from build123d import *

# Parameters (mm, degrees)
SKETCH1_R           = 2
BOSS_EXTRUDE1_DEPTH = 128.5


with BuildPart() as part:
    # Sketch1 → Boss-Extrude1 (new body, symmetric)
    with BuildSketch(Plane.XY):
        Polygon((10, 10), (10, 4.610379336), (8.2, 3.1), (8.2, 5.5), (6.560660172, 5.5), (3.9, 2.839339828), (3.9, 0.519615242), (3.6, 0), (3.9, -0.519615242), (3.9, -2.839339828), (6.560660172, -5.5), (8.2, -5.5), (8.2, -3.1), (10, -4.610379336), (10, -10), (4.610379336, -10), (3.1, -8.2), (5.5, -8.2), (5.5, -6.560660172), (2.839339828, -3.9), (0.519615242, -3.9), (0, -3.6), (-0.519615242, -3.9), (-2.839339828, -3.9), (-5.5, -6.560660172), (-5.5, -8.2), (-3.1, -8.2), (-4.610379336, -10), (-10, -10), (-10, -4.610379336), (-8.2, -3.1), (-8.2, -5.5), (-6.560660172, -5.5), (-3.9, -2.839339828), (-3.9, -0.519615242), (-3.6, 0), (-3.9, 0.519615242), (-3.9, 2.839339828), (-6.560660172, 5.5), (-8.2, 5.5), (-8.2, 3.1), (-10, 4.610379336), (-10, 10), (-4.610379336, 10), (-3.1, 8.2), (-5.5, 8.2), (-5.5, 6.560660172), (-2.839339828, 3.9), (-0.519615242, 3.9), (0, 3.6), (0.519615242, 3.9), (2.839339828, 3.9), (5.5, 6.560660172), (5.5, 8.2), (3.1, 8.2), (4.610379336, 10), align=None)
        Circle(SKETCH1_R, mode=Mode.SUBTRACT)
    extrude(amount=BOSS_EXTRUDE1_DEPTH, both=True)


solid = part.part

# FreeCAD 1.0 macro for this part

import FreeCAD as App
import Part
import Sketcher
Q = App.Units.Quantity

doc = App.newDocument("Part")
body = doc.addObject("PartDesign::Body", "Body")

sketch1 = doc.addObject("Sketcher::SketchObject", "Sketch")
body.addObject(sketch1)
sketch1.AttachmentSupport = (doc.XY_Plane, [""])
sketch1.MapMode = "FlatFace"
sketch1.addGeometry([
    Part.LineSegment(App.Vector(10, 4.6, 0), App.Vector(10, 10, 0)),
    Part.LineSegment(App.Vector(10, 10, 0), App.Vector(4.6, 10, 0)),
    Part.LineSegment(App.Vector(4.6, 10, 0), App.Vector(3.1, 8.2, 0)),
    Part.LineSegment(App.Vector(3.1, 8.2, 0), App.Vector(5.5, 8.2, 0)),
    Part.LineSegment(App.Vector(5.5, 8.2, 0), App.Vector(5.5, 6.6, 0)),
    Part.LineSegment(App.Vector(5.5, 6.6, 0), App.Vector(2.8, 3.9, 0)),
    Part.LineSegment(App.Vector(2.8, 3.9, 0), App.Vector(0.5, 3.9, 0)),
    Part.LineSegment(App.Vector(0.5, 3.9, 0), App.Vector(0, 3.6, 0)),
    Part.LineSegment(App.Vector(0, 3.6, 0), App.Vector(-0.5, 3.9, 0)),
    Part.LineSegment(App.Vector(-0.5, 3.9, 0), App.Vector(-2.8, 3.9, 0)),
    Part.LineSegment(App.Vector(-2.8, 3.9, 0), App.Vector(-5.5, 6.6, 0)),
    Part.LineSegment(App.Vector(-5.5, 6.6, 0), App.Vector(-5.5, 8.2, 0)),
    Part.LineSegment(App.Vector(-5.5, 8.2, 0), App.Vector(-3.1, 8.2, 0)),
    Part.LineSegment(App.Vector(-3.1, 8.2, 0), App.Vector(-4.6, 10, 0)),
    Part.LineSegment(App.Vector(-4.6, 10, 0), App.Vector(-10, 10, 0)),
    Part.LineSegment(App.Vector(-10, 10, 0), App.Vector(-10, 4.6, 0)),
    Part.LineSegment(App.Vector(-10, 4.6, 0), App.Vector(-8.2, 3.1, 0)),
    Part.LineSegment(App.Vector(-8.2, 3.1, 0), App.Vector(-8.2, 5.5, 0)),
    Part.LineSegment(App.Vector(-8.2, 5.5, 0), App.Vector(-6.6, 5.5, 0)),
    Part.LineSegment(App.Vector(-6.6, 5.5, 0), App.Vector(-3.9, 2.8, 0)),
    Part.LineSegment(App.Vector(-3.9, 2.8, 0), App.Vector(-3.9, 0.5, 0)),
    Part.LineSegment(App.Vector(-3.9, 0.5, 0), App.Vector(-3.6, 0, 0)),
    Part.LineSegment(App.Vector(-3.6, 0, 0), App.Vector(-3.9, -0.5, 0)),
    Part.LineSegment(App.Vector(-3.9, -0.5, 0), App.Vector(-3.9, -2.8, 0)),
    Part.LineSegment(App.Vector(-3.9, -2.8, 0), App.Vector(-6.6, -5.5, 0)),
    Part.LineSegment(App.Vector(-6.6, -5.5, 0), App.Vector(-8.2, -5.5, 0)),
    Part.LineSegment(App.Vector(-8.2, -5.5, 0), App.Vector(-8.2, -3.1, 0)),
    Part.LineSegment(App.Vector(-8.2, -3.1, 0), App.Vector(-10, -4.6, 0)),
    Part.LineSegment(App.Vector(-10, -4.6, 0), App.Vector(-10, -10, 0)),
    Part.LineSegment(App.Vector(-10, -10, 0), App.Vector(-4.6, -10, 0)),
    Part.LineSegment(App.Vector(-4.6, -10, 0), App.Vector(-3.1, -8.2, 0)),
    Part.LineSegment(App.Vector(-3.1, -8.2, 0), App.Vector(-5.5, -8.2, 0)),
    Part.LineSegment(App.Vector(-5.5, -8.2, 0), App.Vector(-5.5, -6.6, 0)),
    Part.LineSegment(App.Vector(-5.5, -6.6, 0), App.Vector(-2.8, -3.9, 0)),
    Part.LineSegment(App.Vector(-2.8, -3.9, 0), App.Vector(-0.5, -3.9, 0)),
    Part.LineSegment(App.Vector(-0.5, -3.9, 0), App.Vector(0, -3.6, 0)),
    Part.LineSegment(App.Vector(0, -3.6, 0), App.Vector(0.5, -3.9, 0)),
    Part.LineSegment(App.Vector(0.5, -3.9, 0), App.Vector(2.8, -3.9, 0)),
    Part.LineSegment(App.Vector(2.8, -3.9, 0), App.Vector(5.5, -6.6, 0)),
    Part.LineSegment(App.Vector(5.5, -6.6, 0), App.Vector(5.5, -8.2, 0)),
    Part.LineSegment(App.Vector(5.5, -8.2, 0), App.Vector(3.1, -8.2, 0)),
    Part.LineSegment(App.Vector(3.1, -8.2, 0), App.Vector(4.6, -10, 0)),
    Part.LineSegment(App.Vector(4.6, -10, 0), App.Vector(10, -10, 0)),
    Part.LineSegment(App.Vector(10, -10, 0), App.Vector(10, -4.6, 0)),
    Part.LineSegment(App.Vector(10, -4.6, 0), App.Vector(8.2, -3.1, 0)),
    Part.LineSegment(App.Vector(8.2, -3.1, 0), App.Vector(8.2, -5.5, 0)),
    Part.LineSegment(App.Vector(8.2, -5.5, 0), App.Vector(6.6, -5.5, 0)),
    Part.LineSegment(App.Vector(6.6, -5.5, 0), App.Vector(3.9, -2.8, 0)),
    Part.LineSegment(App.Vector(3.9, -2.8, 0), App.Vector(3.9, -0.5, 0)),
    Part.LineSegment(App.Vector(3.9, -0.5, 0), App.Vector(3.6, 0, 0)),
    Part.LineSegment(App.Vector(3.6, 0, 0), App.Vector(3.9, 0.5, 0)),
    Part.LineSegment(App.Vector(3.9, 0.5, 0), App.Vector(3.9, 2.8, 0)),
    Part.LineSegment(App.Vector(3.9, 2.8, 0), App.Vector(6.6, 5.5, 0)),
    Part.LineSegment(App.Vector(6.6, 5.5, 0), App.Vector(8.2, 5.5, 0)),
    Part.LineSegment(App.Vector(8.2, 5.5, 0), App.Vector(8.2, 3.1, 0)),
    Part.LineSegment(App.Vector(8.2, 3.1, 0), App.Vector(10, 4.6, 0)),
    Part.Circle(App.Vector(0, 0, 0), App.Vector(0, 0, 1), 2),
], False)
sketch1.addConstraint([
    Sketcher.Constraint("Coincident", 0, 2, 1, 1),
    Sketcher.Constraint("Coincident", 1, 2, 2, 1),
    Sketcher.Constraint("Coincident", 2, 2, 3, 1),
    Sketcher.Constraint("Coincident", 3, 2, 4, 1),
    Sketcher.Constraint("Coincident", 4, 2, 5, 1),
    Sketcher.Constraint("Coincident", 5, 2, 6, 1),
    Sketcher.Constraint("Coincident", 6, 2, 7, 1),
    Sketcher.Constraint("Coincident", 7, 2, 8, 1),
    Sketcher.Constraint("Coincident", 8, 2, 9, 1),
    Sketcher.Constraint("Coincident", 9, 2, 10, 1),
    Sketcher.Constraint("Coincident", 10, 2, 11, 1),
    Sketcher.Constraint("Coincident", 11, 2, 12, 1),
    Sketcher.Constraint("Coincident", 12, 2, 13, 1),
    Sketcher.Constraint("Coincident", 13, 2, 14, 1),
    Sketcher.Constraint("Coincident", 14, 2, 15, 1),
    Sketcher.Constraint("Coincident", 15, 2, 16, 1),
    Sketcher.Constraint("Coincident", 16, 2, 17, 1),
    Sketcher.Constraint("Coincident", 17, 2, 18, 1),
    Sketcher.Constraint("Coincident", 18, 2, 19, 1),
    Sketcher.Constraint("Coincident", 19, 2, 20, 1),
    Sketcher.Constraint("Coincident", 20, 2, 21, 1),
    Sketcher.Constraint("Coincident", 21, 2, 22, 1),
    Sketcher.Constraint("Coincident", 22, 2, 23, 1),
    Sketcher.Constraint("Coincident", 23, 2, 24, 1),
    Sketcher.Constraint("Coincident", 24, 2, 25, 1),
    Sketcher.Constraint("Coincident", 25, 2, 26, 1),
    Sketcher.Constraint("Coincident", 26, 2, 27, 1),
    Sketcher.Constraint("Coincident", 27, 2, 28, 1),
    Sketcher.Constraint("Coincident", 28, 2, 29, 1),
    Sketcher.Constraint("Coincident", 29, 2, 30, 1),
    Sketcher.Constraint("Coincident", 30, 2, 31, 1),
    Sketcher.Constraint("Coincident", 31, 2, 32, 1),
    Sketcher.Constraint("Coincident", 32, 2, 33, 1),
    Sketcher.Constraint("Coincident", 33, 2, 34, 1),
    Sketcher.Constraint("Coincident", 34, 2, 35, 1),
    Sketcher.Constraint("Coincident", 35, 2, 36, 1),
    Sketcher.Constraint("Coincident", 36, 2, 37, 1),
    Sketcher.Constraint("Coincident", 37, 2, 38, 1),
    Sketcher.Constraint("Coincident", 38, 2, 39, 1),
    Sketcher.Constraint("Coincident", 39, 2, 40, 1),
    Sketcher.Constraint("Coincident", 40, 2, 41, 1),
    Sketcher.Constraint("Coincident", 41, 2, 42, 1),
    Sketcher.Constraint("Coincident", 42, 2, 43, 1),
    Sketcher.Constraint("Coincident", 43, 2, 44, 1),
    Sketcher.Constraint("Coincident", 44, 2, 45, 1),
    Sketcher.Constraint("Coincident", 45, 2, 46, 1),
    Sketcher.Constraint("Coincident", 46, 2, 47, 1),
    Sketcher.Constraint("Coincident", 47, 2, 48, 1),
    Sketcher.Constraint("Coincident", 48, 2, 49, 1),
    Sketcher.Constraint("Coincident", 49, 2, 50, 1),
    Sketcher.Constraint("Coincident", 50, 2, 51, 1),
    Sketcher.Constraint("Coincident", 51, 2, 52, 1),
    Sketcher.Constraint("Coincident", 52, 2, 53, 1),
    Sketcher.Constraint("Coincident", 53, 2, 54, 1),
    Sketcher.Constraint("Coincident", 54, 2, 55, 1),
    Sketcher.Constraint("Coincident", 55, 2, 0, 1),
    Sketcher.Constraint("Vertical", 0),
    Sketcher.Constraint("Horizontal", 1),
    Sketcher.Constraint("Horizontal", 3),
    Sketcher.Constraint("Vertical", 4),
    Sketcher.Constraint("Horizontal", 6),
    Sketcher.Constraint("Horizontal", 9),
    Sketcher.Constraint("Vertical", 11),
    Sketcher.Constraint("Horizontal", 12),
    Sketcher.Constraint("Horizontal", 14),
    Sketcher.Constraint("Vertical", 15),
    Sketcher.Constraint("Vertical", 17),
    Sketcher.Constraint("Horizontal", 18),
    Sketcher.Constraint("Vertical", 20),
    Sketcher.Constraint("Vertical", 23),
    Sketcher.Constraint("Horizontal", 25),
    Sketcher.Constraint("Vertical", 26),
    Sketcher.Constraint("Vertical", 28),
    Sketcher.Constraint("Horizontal", 29),
    Sketcher.Constraint("Horizontal", 31),
    Sketcher.Constraint("Vertical", 32),
    Sketcher.Constraint("Horizontal", 34),
    Sketcher.Constraint("Horizontal", 37),
    Sketcher.Constraint("Vertical", 39),
    Sketcher.Constraint("Horizontal", 40),
    Sketcher.Constraint("Horizontal", 42),
    Sketcher.Constraint("Vertical", 43),
    Sketcher.Constraint("Vertical", 45),
    Sketcher.Constraint("Horizontal", 46),
    Sketcher.Constraint("Vertical", 48),
    Sketcher.Constraint("Vertical", 51),
    Sketcher.Constraint("Horizontal", 53),
    Sketcher.Constraint("Vertical", 54),
    Sketcher.Constraint("Coincident", 56, 3, -1, 1),
    Sketcher.Constraint("Symmetric", 0, 2, 28, 2, -1, 1),
    Sketcher.Constraint("Symmetric", 2, 2, 30, 2, -1, 1),
    Sketcher.Constraint("Symmetric", 4, 2, 32, 2, -1, 1),
    Sketcher.Constraint("Symmetric", 5, 2, 33, 2, -1, 1),
    Sketcher.Constraint("Symmetric", 7, 2, 35, 2, -1, 1),
    Sketcher.Constraint("Symmetric", 8, 2, 36, 2, -1, 1),
    Sketcher.Constraint("Symmetric", 10, 2, 38, 2, -1, 1),
    Sketcher.Constraint("Symmetric", 12, 2, 40, 2, -1, 1),
    Sketcher.Constraint("Symmetric", 13, 2, 41, 2, -1, 1),
    Sketcher.Constraint("Symmetric", 15, 2, 43, 2, -1, 1),
    Sketcher.Constraint("Symmetric", 16, 2, 44, 2, -1, 1),
    Sketcher.Constraint("Symmetric", 18, 2, 46, 2, -1, 1),
    Sketcher.Constraint("Symmetric", 19, 2, 47, 2, -1, 1),
    Sketcher.Constraint("Symmetric", 21, 2, 49, 2, -1, 1),
    Sketcher.Constraint("Symmetric", 22, 2, 50, 2, -1, 1),
    Sketcher.Constraint("Symmetric", 24, 2, 52, 2, -1, 1),
    Sketcher.Constraint("Symmetric", 26, 2, 54, 2, -1, 1),
    Sketcher.Constraint("Symmetric", 6, 2, 8, 2, -2),
    Sketcher.Constraint("Symmetric", 4, 2, 10, 2, -2),
    Sketcher.Constraint("Symmetric", 2, 2, 12, 2, -2),
    Sketcher.Constraint("Symmetric", 1, 2, 13, 2, -2),
    Sketcher.Constraint("Symmetric", 27, 2, 43, 2, -2),
    Sketcher.Constraint("Symmetric", 26, 2, 44, 2, -2),
    Sketcher.Constraint("Symmetric", 24, 2, 46, 2, -2),
    Sketcher.Constraint("Symmetric", 23, 2, 47, 2, -2),
    Sketcher.Constraint("PointOnObject", 7, 2, -2),
    Sketcher.Constraint("PointOnObject", 21, 2, -1),
    Sketcher.Constraint("Perpendicular", 5, 10),
    Sketcher.Constraint("Perpendicular", 2, 16),
    Sketcher.Constraint("Parallel", 10, 19),
    Sketcher.Constraint("Perpendicular", 7, 21),
    Sketcher.Constraint("Perpendicular", 8, 22),
    Sketcher.Constraint("Perpendicular", 19, 24),
    Sketcher.Constraint("Perpendicular", 16, 30),
    Sketcher.Constraint("Perpendicular", 21, 35),
    Sketcher.Constraint("Perpendicular", 33, 38),
    Sketcher.Constraint("Perpendicular", 35, 49),
    Sketcher.Constraint("Perpendicular", 47, 52),
    Sketcher.Constraint("Perpendicular", 41, 55),
    Sketcher.Constraint("Equal", 42, 0),
    Sketcher.Constraint("Equal", 53, 4),
    Sketcher.Constraint("Equal", 40, 17),
    Sketcher.Constraint("Equal", 37, 20),
    Sketcher.Constraint("Equal", 13, 16),
    Sketcher.Constraint("Equal", 10, 19),
    Sketcher.Constraint("Equal", 8, 21),
    Sketcher.Constraint("Diameter", 56, Q("4 mm")),
    Sketcher.Constraint("Angle", 2, Q("-130 deg")),
    Sketcher.Constraint("Angle", 7, Q("-150 deg")),
    Sketcher.Constraint("DistanceX", 3, 1, 3, 2, Q("2.4 mm")),
    Sketcher.Constraint("DistanceX", -1, 1, 0, 2, Q("10 mm")),
    Sketcher.Constraint("Distance", 7, Q("0.6 mm")),
    Sketcher.Constraint("DistanceX", -1, 1, 2, 2, Q("3.1 mm")),
    Sketcher.Constraint("DistanceY", -1, 1, 2, 2, Q("8.2 mm")),
    Sketcher.Constraint("DistanceY", -1, 1, 5, 2, Q("3.9 mm")),
    Sketcher.Constraint("DistanceX", 18, 1, 18, 2, Q("1.63934 mm")),
])
pad1 = doc.addObject("PartDesign::Pad", "Pad")
body.addObject(pad1)
pad1.Profile = sketch1
pad1.Length = 257
pad1.Midplane = True

doc.recompute()
